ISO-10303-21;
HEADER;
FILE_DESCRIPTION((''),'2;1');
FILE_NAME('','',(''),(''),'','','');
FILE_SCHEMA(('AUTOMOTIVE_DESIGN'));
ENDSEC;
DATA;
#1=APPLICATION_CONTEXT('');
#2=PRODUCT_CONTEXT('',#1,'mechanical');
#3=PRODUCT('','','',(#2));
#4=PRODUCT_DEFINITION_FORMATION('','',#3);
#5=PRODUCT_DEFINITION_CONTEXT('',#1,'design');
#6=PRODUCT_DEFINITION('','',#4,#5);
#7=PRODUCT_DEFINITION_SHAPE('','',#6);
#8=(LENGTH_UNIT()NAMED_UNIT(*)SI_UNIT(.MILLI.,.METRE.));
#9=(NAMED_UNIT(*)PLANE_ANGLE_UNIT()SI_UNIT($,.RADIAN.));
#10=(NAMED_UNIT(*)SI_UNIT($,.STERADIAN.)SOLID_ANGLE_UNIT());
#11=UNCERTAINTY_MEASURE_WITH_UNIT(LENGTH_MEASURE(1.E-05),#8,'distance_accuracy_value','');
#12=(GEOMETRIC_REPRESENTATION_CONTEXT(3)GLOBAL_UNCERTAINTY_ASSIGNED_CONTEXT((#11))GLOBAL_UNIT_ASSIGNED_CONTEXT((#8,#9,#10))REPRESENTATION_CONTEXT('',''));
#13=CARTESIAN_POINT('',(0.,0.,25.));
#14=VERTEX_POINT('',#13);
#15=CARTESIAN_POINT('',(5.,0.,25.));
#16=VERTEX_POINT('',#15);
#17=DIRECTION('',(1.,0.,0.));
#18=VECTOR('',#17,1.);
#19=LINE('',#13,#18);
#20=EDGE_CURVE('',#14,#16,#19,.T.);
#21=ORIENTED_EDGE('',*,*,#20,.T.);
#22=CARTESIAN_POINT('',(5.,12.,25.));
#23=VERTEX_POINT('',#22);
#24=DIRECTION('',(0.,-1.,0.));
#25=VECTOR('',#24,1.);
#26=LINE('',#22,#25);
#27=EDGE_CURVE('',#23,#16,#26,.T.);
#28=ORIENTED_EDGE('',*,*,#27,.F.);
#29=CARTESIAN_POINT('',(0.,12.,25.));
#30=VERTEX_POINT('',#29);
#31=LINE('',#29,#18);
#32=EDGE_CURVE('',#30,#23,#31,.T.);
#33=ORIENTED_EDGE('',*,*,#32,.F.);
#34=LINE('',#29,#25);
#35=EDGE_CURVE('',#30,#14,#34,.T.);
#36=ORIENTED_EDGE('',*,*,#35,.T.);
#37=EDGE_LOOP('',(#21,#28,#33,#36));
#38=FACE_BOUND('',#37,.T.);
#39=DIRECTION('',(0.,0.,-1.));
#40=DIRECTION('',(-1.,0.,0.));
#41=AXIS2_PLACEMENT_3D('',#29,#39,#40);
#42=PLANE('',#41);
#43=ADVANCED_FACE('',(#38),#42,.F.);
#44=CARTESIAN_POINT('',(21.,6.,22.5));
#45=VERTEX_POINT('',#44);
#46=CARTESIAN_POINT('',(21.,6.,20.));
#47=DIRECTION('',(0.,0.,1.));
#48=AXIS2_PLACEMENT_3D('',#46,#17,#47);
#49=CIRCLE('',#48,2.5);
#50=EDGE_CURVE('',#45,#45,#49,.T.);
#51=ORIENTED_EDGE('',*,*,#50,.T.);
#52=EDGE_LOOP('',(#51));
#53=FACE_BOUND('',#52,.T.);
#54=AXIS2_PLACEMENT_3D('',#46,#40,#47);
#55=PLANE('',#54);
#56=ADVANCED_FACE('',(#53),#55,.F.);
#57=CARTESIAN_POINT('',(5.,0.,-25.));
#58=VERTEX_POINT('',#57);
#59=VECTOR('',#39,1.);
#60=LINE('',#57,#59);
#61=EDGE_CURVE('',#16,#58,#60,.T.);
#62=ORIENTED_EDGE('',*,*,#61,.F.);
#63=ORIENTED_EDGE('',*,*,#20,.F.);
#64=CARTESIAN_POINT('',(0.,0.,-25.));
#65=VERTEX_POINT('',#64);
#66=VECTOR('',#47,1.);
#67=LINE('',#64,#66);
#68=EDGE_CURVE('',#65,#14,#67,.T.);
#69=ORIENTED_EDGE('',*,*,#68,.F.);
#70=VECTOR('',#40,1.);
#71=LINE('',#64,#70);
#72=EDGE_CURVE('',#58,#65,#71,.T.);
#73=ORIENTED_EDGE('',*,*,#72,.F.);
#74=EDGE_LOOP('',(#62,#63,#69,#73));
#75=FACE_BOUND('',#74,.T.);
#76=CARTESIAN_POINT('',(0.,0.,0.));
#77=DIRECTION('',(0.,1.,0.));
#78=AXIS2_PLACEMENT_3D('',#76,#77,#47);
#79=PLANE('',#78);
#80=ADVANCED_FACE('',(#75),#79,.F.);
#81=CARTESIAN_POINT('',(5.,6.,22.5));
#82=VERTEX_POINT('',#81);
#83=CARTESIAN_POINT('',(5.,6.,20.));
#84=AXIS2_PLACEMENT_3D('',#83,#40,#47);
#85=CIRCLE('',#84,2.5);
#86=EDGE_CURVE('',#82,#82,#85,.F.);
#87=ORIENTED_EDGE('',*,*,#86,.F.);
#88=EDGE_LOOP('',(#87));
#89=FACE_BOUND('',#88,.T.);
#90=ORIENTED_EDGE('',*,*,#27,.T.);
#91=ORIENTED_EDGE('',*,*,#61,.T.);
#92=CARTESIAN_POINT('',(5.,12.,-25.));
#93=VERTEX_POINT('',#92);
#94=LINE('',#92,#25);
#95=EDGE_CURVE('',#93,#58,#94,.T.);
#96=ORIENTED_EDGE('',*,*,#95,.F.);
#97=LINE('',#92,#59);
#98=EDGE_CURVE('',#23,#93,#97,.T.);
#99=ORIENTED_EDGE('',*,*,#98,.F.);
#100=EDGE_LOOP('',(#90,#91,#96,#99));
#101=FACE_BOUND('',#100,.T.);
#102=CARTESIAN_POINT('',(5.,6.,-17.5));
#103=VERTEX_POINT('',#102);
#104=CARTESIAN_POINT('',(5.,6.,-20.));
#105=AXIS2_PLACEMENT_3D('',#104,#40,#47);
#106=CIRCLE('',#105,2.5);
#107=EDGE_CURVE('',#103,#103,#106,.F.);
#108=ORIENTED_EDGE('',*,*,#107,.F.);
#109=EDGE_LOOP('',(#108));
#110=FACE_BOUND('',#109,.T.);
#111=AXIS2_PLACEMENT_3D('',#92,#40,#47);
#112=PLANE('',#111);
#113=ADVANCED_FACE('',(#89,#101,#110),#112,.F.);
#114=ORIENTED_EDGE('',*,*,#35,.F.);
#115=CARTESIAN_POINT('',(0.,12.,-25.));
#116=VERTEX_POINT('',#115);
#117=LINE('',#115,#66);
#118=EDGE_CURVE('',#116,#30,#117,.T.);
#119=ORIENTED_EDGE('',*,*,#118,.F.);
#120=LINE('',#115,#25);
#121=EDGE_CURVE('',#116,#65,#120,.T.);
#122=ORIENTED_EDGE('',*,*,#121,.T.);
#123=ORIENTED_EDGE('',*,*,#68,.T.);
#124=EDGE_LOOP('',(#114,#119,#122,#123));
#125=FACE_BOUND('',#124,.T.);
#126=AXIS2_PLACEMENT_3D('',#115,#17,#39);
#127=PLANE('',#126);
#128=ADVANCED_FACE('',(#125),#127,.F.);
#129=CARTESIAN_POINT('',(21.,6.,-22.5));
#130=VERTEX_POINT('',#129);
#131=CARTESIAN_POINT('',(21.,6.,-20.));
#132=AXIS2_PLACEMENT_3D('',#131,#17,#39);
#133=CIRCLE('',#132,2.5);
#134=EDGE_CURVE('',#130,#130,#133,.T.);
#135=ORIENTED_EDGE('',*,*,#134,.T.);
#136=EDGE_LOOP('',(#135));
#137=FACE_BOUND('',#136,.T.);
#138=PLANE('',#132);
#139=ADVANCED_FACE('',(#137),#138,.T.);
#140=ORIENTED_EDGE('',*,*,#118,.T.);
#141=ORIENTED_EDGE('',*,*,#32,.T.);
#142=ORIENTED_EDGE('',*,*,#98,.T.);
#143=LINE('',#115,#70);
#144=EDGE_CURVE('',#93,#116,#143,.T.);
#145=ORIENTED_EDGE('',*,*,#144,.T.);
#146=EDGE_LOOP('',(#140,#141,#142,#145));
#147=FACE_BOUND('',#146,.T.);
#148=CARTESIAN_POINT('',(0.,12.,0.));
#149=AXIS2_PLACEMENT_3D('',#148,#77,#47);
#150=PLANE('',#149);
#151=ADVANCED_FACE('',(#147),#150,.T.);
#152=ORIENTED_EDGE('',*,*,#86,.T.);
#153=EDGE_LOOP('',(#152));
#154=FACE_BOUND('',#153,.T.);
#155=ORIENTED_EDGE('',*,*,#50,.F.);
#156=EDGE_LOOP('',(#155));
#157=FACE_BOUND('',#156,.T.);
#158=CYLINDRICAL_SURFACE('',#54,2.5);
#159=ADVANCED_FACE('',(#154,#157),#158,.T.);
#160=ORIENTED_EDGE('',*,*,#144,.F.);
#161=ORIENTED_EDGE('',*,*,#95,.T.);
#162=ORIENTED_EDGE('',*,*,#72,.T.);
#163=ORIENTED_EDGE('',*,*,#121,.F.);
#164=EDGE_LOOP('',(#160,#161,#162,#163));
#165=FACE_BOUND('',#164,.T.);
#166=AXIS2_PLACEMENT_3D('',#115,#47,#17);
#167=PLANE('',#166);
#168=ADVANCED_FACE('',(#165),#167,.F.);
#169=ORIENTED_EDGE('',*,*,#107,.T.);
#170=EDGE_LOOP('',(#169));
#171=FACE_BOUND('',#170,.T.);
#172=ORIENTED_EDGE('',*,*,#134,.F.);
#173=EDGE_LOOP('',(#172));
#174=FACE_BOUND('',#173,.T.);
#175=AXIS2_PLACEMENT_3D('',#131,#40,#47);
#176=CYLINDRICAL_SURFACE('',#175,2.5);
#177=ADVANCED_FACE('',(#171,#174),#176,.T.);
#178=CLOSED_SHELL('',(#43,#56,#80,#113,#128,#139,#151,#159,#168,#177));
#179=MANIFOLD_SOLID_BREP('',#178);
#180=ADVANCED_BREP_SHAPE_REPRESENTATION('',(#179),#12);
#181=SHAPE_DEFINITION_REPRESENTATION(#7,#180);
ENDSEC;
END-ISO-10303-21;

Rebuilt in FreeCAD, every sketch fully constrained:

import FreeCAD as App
import Part
import Sketcher
Q = App.Units.Quantity

doc = App.newDocument("Part")
params = doc.addObject("Spreadsheet::Sheet", "Params")
for row, (alias, value) in enumerate([
    ("sketch1_width", "5 mm"),
    ("sketch1_height", "50 mm"),
    ("pad1_length", "12 mm"),
    ("sketch2_diameter", "5 mm"),
    ("pad2_length", "16 mm"),
], start=1):
    params.set(f"A{row}", alias)
    params.set(f"B{row}", "=" + value)
    params.setAlias(f"B{row}", alias)

body = doc.addObject("PartDesign::Body", "Body")

# Sketch on XZ plane
sketch1 = body.newObject("Sketcher::SketchObject", "Sketch")
sketch1.AttachmentSupport = (doc.getObject("XZ_Plane"), [""])
sketch1.MapMode = "FlatFace"
sketch1.addGeometry([
    Part.LineSegment(App.Vector(0, -25, 0), App.Vector(0, 25, 0)),
    Part.LineSegment(App.Vector(0, 25, 0), App.Vector(5, 25, 0)),
    Part.LineSegment(App.Vector(5, 25, 0), App.Vector(5, -25, 0)),
    Part.LineSegment(App.Vector(5, -25, 0), App.Vector(0, -25, 0)),
], False)
sketch1.addConstraint([
    Sketcher.Constraint("Coincident", 0, 2, 1, 1),
    Sketcher.Constraint("Coincident", 1, 2, 2, 1),
    Sketcher.Constraint("Coincident", 2, 2, 3, 1),
    Sketcher.Constraint("Coincident", 3, 2, 0, 1),
    Sketcher.Constraint("Vertical", 0),
    Sketcher.Constraint("Horizontal", 1),
    Sketcher.Constraint("Vertical", 2),
    Sketcher.Constraint("Horizontal", 3),
    Sketcher.Constraint("Symmetric", 0, 2, 3, 2, -1, 1),
    Sketcher.Constraint("DistanceX", 1, 1, 1, 2, Q("5 mm")),
    Sketcher.Constraint("DistanceY", 0, 1, 0, 2, Q("50 mm")),
])
sketch1.setExpression("Constraints[9]", "Params.sketch1_width")
sketch1.setExpression("Constraints[10]", "Params.sketch1_height")
pad1 = body.newObject("PartDesign::Pad", "Pad")
pad1.Profile = sketch1
pad1.setExpression("Length", "Params.pad1_length")
pad1.Reversed = True

# Sketch on YZ plane
sketch2 = body.newObject("Sketcher::SketchObject", "Sketch001")
sketch2.AttachmentSupport = (doc.getObject("YZ_Plane"), [""])
sketch2.MapMode = "FlatFace"
sketch2.AttachmentOffset = App.Placement(App.Vector(0, 0, 5), App.Rotation())
sketch2.addGeometry([
    Part.Circle(App.Vector(6, -20, 0), App.Vector(0, 0, 1), 2.5),
    Part.Circle(App.Vector(6, 20, 0), App.Vector(0, 0, 1), 2.5),
], False)
sketch2.addConstraint([
    Sketcher.Constraint("Equal", 0, 1),
    Sketcher.Constraint("Symmetric", 0, 3, 1, 3, -1),
    Sketcher.Constraint("Diameter", 0, Q("5 mm")),
    Sketcher.Constraint("DistanceX", -1, 1, 0, 3, Q("6 mm")),
    Sketcher.Constraint("DistanceY", 0, 3, -1, 1, Q("20 mm")),
])
sketch2.setExpression("Constraints[2]", "Params.sketch2_diameter")
pad2 = body.newObject("PartDesign::Pad", "Pad001")
pad2.Profile = sketch2
pad2.setExpression("Length", "Params.pad2_length")

doc.recompute()
